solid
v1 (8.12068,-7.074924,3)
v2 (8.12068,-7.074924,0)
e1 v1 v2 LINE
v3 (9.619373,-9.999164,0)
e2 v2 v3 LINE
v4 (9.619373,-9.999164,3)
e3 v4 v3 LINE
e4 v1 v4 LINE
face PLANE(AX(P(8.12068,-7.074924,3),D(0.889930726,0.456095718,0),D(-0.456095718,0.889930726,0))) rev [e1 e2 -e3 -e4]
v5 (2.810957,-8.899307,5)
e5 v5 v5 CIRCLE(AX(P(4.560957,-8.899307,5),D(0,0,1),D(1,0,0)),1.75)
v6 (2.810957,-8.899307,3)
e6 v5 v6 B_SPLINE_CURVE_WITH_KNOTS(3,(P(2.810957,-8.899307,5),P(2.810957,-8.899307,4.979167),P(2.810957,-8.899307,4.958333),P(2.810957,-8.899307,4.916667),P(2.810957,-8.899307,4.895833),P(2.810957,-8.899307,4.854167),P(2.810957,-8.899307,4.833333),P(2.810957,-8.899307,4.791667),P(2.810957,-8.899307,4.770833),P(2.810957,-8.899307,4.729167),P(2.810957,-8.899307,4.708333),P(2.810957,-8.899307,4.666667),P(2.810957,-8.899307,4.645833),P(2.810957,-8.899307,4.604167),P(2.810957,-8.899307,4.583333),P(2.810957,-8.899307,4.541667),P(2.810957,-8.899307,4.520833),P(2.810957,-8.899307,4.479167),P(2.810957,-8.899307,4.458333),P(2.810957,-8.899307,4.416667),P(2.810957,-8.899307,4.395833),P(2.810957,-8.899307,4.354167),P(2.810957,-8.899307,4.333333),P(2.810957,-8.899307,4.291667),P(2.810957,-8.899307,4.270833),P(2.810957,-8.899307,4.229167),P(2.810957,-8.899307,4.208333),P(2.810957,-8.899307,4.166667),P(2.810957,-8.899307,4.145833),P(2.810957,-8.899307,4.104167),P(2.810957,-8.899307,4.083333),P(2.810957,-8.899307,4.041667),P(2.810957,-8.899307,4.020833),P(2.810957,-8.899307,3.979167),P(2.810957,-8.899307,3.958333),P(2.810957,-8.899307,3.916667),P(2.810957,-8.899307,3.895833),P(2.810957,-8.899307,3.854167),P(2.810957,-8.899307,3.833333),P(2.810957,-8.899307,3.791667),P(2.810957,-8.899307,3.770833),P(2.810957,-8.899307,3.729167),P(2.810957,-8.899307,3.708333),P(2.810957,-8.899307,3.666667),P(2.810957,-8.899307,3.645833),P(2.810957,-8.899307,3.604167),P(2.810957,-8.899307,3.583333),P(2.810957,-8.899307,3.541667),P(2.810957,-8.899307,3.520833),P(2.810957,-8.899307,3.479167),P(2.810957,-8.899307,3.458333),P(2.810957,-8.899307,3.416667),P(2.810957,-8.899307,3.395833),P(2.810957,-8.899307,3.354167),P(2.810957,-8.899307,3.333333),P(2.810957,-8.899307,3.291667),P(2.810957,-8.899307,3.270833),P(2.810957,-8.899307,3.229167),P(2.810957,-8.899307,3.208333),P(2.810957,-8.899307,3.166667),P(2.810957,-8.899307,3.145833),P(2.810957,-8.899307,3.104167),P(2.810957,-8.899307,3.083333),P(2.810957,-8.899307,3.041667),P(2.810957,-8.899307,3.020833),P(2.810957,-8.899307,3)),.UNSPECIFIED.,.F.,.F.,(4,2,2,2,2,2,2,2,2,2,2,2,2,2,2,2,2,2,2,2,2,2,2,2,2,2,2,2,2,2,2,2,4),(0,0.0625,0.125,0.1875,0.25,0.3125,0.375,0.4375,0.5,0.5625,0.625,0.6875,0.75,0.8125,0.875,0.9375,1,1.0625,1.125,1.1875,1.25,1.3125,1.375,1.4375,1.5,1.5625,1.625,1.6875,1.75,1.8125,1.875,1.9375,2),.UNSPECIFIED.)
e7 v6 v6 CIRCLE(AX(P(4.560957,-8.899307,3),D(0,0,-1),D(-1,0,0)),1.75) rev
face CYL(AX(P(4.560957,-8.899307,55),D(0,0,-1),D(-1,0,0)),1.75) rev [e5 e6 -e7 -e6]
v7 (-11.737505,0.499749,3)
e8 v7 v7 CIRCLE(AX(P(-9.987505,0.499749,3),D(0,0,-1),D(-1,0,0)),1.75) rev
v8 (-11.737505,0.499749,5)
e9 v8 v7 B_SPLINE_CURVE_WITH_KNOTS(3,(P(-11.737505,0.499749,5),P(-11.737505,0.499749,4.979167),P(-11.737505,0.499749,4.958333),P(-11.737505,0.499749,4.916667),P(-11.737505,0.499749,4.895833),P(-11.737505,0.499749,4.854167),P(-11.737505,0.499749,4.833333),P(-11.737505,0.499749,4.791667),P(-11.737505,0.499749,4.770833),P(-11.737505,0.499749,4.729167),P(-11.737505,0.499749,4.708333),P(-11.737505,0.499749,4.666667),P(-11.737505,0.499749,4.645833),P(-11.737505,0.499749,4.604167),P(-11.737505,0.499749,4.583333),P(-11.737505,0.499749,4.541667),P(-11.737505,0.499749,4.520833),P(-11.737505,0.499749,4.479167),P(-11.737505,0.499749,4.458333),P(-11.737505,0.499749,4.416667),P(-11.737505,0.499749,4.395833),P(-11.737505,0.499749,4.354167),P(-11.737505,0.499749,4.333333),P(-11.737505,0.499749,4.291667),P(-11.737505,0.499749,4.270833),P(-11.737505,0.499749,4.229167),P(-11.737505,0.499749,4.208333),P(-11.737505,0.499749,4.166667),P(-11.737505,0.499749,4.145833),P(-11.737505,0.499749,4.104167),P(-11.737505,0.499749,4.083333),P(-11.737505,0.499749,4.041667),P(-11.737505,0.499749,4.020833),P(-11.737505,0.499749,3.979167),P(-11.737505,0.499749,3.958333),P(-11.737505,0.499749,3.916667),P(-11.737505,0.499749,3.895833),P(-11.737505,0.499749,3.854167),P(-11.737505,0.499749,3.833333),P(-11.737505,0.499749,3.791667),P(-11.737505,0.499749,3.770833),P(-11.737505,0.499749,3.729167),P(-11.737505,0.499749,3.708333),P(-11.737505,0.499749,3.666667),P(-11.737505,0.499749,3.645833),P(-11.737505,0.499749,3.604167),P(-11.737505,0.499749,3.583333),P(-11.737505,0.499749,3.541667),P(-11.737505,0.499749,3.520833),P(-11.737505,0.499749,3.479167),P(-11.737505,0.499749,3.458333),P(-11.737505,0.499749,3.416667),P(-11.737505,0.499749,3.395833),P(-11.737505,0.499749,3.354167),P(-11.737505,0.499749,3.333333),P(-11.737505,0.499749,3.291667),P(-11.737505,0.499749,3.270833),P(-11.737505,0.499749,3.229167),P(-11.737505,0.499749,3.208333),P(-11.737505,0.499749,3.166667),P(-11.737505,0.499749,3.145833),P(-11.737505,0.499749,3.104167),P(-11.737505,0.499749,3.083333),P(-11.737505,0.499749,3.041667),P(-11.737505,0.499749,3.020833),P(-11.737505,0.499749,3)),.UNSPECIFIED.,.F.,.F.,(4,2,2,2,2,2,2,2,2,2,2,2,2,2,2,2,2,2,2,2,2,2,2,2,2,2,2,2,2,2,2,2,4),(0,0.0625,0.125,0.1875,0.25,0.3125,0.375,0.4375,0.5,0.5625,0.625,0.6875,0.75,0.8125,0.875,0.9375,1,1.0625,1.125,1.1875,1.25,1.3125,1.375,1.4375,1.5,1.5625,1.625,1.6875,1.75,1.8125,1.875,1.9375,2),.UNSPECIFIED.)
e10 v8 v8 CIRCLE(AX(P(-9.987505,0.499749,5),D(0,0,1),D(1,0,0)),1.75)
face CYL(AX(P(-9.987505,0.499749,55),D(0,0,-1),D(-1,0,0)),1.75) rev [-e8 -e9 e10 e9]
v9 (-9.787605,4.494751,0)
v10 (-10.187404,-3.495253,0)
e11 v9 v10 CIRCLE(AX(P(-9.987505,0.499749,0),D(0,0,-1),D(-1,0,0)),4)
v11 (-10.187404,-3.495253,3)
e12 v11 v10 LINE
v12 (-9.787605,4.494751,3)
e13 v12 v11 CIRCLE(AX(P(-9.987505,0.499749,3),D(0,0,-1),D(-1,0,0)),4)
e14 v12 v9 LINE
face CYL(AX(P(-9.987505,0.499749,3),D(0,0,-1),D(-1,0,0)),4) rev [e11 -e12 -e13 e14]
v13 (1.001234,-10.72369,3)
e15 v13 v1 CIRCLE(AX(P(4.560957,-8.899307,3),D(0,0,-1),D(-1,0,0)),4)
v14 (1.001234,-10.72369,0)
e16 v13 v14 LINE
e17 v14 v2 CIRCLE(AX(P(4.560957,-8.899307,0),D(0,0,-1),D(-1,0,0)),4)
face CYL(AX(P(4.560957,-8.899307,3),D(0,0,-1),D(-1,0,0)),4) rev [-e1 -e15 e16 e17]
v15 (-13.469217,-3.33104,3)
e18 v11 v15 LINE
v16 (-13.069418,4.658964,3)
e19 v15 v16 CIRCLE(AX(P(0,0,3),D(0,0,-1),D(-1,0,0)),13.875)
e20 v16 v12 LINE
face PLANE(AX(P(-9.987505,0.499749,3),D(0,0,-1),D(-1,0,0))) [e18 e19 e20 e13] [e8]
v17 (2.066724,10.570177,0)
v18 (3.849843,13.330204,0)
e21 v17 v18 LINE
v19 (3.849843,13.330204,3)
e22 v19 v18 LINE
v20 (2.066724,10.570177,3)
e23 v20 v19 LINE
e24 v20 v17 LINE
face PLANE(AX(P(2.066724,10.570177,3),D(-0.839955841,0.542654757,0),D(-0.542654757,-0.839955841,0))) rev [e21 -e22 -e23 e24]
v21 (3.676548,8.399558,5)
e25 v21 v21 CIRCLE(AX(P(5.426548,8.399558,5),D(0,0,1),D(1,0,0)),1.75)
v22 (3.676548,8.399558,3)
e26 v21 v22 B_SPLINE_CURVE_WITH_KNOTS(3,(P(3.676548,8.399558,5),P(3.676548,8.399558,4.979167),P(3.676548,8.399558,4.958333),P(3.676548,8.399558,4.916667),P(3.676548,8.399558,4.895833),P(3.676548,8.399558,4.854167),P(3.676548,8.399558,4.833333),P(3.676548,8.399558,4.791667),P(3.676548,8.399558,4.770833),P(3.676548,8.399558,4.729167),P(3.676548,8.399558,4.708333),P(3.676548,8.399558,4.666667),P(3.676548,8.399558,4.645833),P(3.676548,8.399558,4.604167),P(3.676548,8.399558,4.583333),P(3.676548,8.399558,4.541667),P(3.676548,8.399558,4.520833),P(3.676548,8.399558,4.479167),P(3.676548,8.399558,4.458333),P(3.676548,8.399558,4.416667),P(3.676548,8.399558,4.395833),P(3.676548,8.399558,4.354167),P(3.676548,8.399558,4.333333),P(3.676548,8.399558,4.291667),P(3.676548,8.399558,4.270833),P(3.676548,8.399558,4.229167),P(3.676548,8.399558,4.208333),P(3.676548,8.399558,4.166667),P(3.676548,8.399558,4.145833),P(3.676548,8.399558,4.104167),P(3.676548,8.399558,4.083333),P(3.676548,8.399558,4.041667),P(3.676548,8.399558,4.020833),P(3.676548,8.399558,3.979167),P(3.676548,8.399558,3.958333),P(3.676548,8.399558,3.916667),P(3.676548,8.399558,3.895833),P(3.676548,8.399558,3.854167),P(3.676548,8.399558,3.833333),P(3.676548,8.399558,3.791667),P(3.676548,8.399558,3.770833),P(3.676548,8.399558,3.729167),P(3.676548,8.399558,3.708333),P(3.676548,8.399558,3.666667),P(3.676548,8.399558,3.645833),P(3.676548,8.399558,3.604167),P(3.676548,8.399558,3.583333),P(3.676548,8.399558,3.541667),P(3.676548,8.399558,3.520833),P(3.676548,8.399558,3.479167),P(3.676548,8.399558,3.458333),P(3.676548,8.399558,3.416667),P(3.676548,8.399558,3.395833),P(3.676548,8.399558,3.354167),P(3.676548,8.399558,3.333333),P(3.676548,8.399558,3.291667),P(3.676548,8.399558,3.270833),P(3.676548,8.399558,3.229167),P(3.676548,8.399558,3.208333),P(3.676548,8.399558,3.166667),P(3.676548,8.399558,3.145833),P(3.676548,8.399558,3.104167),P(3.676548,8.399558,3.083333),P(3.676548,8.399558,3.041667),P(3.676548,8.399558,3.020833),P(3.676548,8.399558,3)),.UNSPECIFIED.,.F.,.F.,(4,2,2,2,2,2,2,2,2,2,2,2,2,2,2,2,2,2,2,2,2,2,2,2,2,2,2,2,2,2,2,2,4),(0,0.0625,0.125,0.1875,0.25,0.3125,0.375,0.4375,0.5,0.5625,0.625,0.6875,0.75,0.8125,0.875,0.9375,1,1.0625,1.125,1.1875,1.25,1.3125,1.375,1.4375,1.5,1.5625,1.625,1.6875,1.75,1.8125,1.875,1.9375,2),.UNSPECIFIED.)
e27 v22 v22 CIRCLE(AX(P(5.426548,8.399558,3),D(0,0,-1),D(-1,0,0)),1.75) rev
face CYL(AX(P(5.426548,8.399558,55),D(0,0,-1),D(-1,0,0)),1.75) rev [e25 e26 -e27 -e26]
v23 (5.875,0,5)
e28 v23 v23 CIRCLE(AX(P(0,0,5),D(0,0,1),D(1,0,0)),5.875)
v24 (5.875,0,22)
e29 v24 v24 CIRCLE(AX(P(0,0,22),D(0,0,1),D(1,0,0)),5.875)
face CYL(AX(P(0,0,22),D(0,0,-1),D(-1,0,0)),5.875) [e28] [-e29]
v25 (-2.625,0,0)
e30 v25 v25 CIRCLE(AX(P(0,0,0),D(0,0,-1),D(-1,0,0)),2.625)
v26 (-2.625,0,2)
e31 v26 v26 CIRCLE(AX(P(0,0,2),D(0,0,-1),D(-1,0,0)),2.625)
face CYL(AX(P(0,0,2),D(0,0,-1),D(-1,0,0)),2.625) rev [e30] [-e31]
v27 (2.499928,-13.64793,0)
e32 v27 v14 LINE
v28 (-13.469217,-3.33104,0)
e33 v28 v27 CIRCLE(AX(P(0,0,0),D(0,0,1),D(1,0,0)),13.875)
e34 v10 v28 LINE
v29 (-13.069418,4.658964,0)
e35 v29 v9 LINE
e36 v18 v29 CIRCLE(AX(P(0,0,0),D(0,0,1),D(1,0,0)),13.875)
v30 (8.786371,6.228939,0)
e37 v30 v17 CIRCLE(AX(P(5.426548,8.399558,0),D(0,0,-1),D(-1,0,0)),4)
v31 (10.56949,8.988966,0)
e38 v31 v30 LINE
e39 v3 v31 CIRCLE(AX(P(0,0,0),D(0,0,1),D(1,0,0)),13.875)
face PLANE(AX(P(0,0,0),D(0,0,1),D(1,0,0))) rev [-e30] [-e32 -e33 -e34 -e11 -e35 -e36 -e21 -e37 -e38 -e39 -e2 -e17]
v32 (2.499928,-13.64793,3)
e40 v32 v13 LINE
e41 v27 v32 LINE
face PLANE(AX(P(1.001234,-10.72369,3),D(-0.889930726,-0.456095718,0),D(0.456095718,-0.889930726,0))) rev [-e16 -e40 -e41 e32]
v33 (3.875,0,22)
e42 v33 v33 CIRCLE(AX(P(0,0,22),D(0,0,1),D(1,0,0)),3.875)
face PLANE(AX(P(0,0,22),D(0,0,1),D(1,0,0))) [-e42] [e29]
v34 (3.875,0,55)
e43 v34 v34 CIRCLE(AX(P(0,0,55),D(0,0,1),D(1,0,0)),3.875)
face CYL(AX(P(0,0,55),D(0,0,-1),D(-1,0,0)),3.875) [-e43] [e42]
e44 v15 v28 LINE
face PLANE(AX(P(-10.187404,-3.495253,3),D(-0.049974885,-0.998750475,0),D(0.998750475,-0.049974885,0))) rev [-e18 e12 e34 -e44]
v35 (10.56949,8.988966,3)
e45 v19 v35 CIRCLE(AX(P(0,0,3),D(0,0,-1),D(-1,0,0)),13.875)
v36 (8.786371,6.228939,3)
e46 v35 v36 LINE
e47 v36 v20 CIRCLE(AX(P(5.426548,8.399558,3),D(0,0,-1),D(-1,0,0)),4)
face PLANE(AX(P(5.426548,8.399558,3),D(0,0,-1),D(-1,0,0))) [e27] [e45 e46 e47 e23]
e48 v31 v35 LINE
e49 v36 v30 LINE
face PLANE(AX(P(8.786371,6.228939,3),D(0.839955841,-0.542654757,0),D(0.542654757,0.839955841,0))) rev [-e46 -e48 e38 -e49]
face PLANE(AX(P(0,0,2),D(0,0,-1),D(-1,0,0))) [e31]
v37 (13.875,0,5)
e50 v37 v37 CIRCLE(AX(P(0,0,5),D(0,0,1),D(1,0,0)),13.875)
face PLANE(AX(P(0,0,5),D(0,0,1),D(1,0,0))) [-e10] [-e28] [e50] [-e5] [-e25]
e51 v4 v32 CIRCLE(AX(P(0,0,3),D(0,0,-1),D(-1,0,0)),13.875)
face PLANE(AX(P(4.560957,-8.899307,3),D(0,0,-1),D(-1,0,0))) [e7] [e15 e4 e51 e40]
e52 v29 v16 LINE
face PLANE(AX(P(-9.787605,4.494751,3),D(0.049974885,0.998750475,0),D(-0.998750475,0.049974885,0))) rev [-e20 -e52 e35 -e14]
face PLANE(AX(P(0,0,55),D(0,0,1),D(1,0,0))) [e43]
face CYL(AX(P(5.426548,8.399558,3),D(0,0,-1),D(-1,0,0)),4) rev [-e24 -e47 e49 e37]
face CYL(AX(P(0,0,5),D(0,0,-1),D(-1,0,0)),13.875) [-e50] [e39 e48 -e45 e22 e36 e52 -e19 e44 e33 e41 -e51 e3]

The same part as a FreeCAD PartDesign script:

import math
import FreeCAD as App
import Part
import Sketcher

V = App.Vector
Q = App.Units.Quantity

doc = App.newDocument("Part")
body = doc.addObject("PartDesign::Body", "Body")

# Sketch on XY plane
sketch1 = body.newObject("Sketcher::SketchObject", "Sketch")
sketch1.AttachmentSupport = (doc.getObject("XY_Plane"), [""])
sketch1.MapMode = "FlatFace"
sketch1.addGeometry(Part.Circle(V(0, 0, 0), V(0, 0, 1), 14), False)
sketch1.addConstraint([
    Sketcher.Constraint("Coincident", 0, 3, -1, 1),
    Sketcher.Constraint("Diameter", 0, Q("27.75 mm")),
])
pad1 = body.newObject("PartDesign::Pad", "Pad")
pad1.Profile = sketch1
pad1.Length = 5

# Sketch on XY plane
sketch2 = body.newObject("Sketcher::SketchObject", "Sketch001")
sketch2.AttachmentSupport = (doc.getObject("XY_Plane"), [""])
sketch2.MapMode = "FlatFace"
sketch2.addGeometry(Part.Circle(V(0, 0, 0), V(0, 0, 1), 2.6), False)
sketch2.addConstraint([
    Sketcher.Constraint("Coincident", 0, 3, -1, 1),
    Sketcher.Constraint("Diameter", 0, Q("5.25 mm")),
])
pocket1 = body.newObject("PartDesign::Pocket", "Pocket")
pocket1.Profile = sketch2
pocket1.Length = 2
pocket1.Reversed = True

# Sketch on XY plane
sketch3 = body.newObject("Sketcher::SketchObject", "Sketch002")
sketch3.AttachmentSupport = (doc.getObject("XY_Plane"), [""])
sketch3.MapMode = "FlatFace"
sketch3.AttachmentOffset = App.Placement(V(0, 0, 5), App.Rotation())
sketch3.addGeometry(Part.Circle(V(0, 0, 0), V(0, 0, 1), 3.9), False)
sketch3.addConstraint([
    Sketcher.Constraint("Coincident", 0, 3, -1, 1),
    Sketcher.Constraint("Diameter", 0, Q("7.75 mm")),
])
pad2 = body.newObject("PartDesign::Pad", "Pad001")
pad2.Profile = sketch3
pad2.Length = 50

# Sketch on XY plane
sketch4 = body.newObject("Sketcher::SketchObject", "Sketch003")
sketch4.AttachmentSupport = (doc.getObject("XY_Plane"), [""])
sketch4.MapMode = "FlatFace"
sketch4.AttachmentOffset = App.Placement(V(0, 0, 5), App.Rotation())
sketch4.addGeometry(Part.Circle(V(0, 0, 0), V(0, 0, 1), 6), False)
sketch4.addConstraint([
    Sketcher.Constraint("Coincident", 0, 3, -1, 1),
    Sketcher.Constraint("Diameter", 0, Q("11.75 mm")),
])
pad3 = body.newObject("PartDesign::Pad", "Pad002")
pad3.Profile = sketch4
pad3.Length = 17

# Sketch on XY plane
sketch5 = body.newObject("Sketcher::SketchObject", "Sketch004")
sketch5.AttachmentSupport = (doc.getObject("XY_Plane"), [""])
sketch5.MapMode = "FlatFace"
sketch5.addGeometry([
    Part.Circle(V(-10, 0.5, 0), V(0, 0, 1), 1.8),
    Part.Circle(V(4.6, -8.9, 0), V(0, 0, 1), 1.8),
    Part.Circle(V(5.4, 8.4, 0), V(0, 0, 1), 1.8),
], False)
sketch5.addConstraint([
    Sketcher.Constraint("Equal", 0, 1),
    Sketcher.Constraint("Equal", 1, 2),
    Sketcher.Constraint("Diameter", 0, Q("3.5 mm")),
    Sketcher.Constraint("DistanceY", -1, 1, 0, 3, Q("0.499749 mm")),
    Sketcher.Constraint("DistanceY", -1, 1, 2, 3, Q("8.399558 mm")),
    Sketcher.Constraint("DistanceX", 0, 3, 1, 3, Q("14.548462 mm")),
    Sketcher.Constraint("DistanceX", 1, 3, 2, 3, Q("0.86559 mm")),
    Sketcher.Constraint("DistanceX", 0, 3, -1, 1, Q("9.987505 mm")),
    Sketcher.Constraint("DistanceY", 1, 3, -1, 1, Q("8.899307 mm")),
])
pocket2 = body.newObject("PartDesign::Pocket", "Pocket001")
pocket2.Profile = sketch5
pocket2.Type = "ThroughAll"
pocket2.Midplane = True

# Sketch on XY plane
sketch6 = body.newObject("Sketcher::SketchObject", "Sketch005")
sketch6.AttachmentSupport = (doc.getObject("XY_Plane"), [""])
sketch6.MapMode = "FlatFace"
sketch6.addGeometry([
    Part.LineSegment(V(-14.8, 4.7, 0), V(-9.8, 4.5, 0)),  # 0
    Part.ArcOfCircle(Part.Circle(V(-10, 0.5, 0), V(0, 0, 1), 4), math.radians(-93), math.radians(87)),  # 1
    Part.LineSegment(V(-10.2, -3.5, 0), V(-15.2, -3.2, 0)),  # 2
    Part.ArcOfCircle(Part.Circle(V(-15, 0.8, 0), V(0, 0, 1), 4), math.radians(87), math.radians(267)),  # 3
    Part.LineSegment(V(4.3, -17.1, 0), V(1, -10.7, 0)),  # 4
    Part.ArcOfCircle(Part.Circle(V(4.6, -8.9, 0), V(0, 0, 1), 4), math.radians(27), math.radians(207)),  # 5
    Part.LineSegment(V(8.1, -7.1, 0), V(11.4, -13.4, 0)),  # 6
    Part.ArcOfCircle(Part.Circle(V(7.8, -15.3, 0), V(0, 0, 1), 4), math.radians(-153), math.radians(27)),  # 7
    Part.LineSegment(V(13.2, 13.1, 0), V(8.8, 6.2, 0)),  # 8
    Part.ArcOfCircle(Part.Circle(V(5.4, 8.4, 0), V(0, 0, 1), 4), math.radians(147), math.radians(327)),  # 9
    Part.LineSegment(V(2.1, 10.6, 0), V(6.5, 17.4, 0)),  # 10
    Part.ArcOfCircle(Part.Circle(V(9.8, 15.2, 0), V(0, 0, 1), 4), math.radians(-33), math.radians(147)),  # 11
], False)
sketch6.addConstraint([
    Sketcher.Constraint("Tangent", 0, 2, 1, 2),
    Sketcher.Constraint("Tangent", 1, 1, 2, 1),
    Sketcher.Constraint("Tangent", 2, 2, 3, 2),
    Sketcher.Constraint("Tangent", 3, 1, 0, 1),
    Sketcher.Constraint("Tangent", 4, 2, 5, 2),
    Sketcher.Constraint("Tangent", 5, 1, 6, 1),
    Sketcher.Constraint("Tangent", 6, 2, 7, 2),
    Sketcher.Constraint("Tangent", 7, 1, 4, 1),
    Sketcher.Constraint("Tangent", 8, 2, 9, 2),
    Sketcher.Constraint("Tangent", 9, 1, 10, 1),
    Sketcher.Constraint("Tangent", 10, 2, 11, 2),
    Sketcher.Constraint("Tangent", 11, 1, 8, 1),
    Sketcher.Constraint("Equal", 1, 3),
    Sketcher.Constraint("Equal", 3, 5),
    Sketcher.Constraint("Equal", 5, 7),
    Sketcher.Constraint("Equal", 7, 9),
    Sketcher.Constraint("Equal", 9, 11),
    Sketcher.Constraint("Radius", 1, Q("4 mm")),
    Sketcher.Constraint("DistanceY", 1, 3, 0, 2, Q("3.995002 mm")),
    Sketcher.Constraint("DistanceY", 9, 1, 11, 1, Q("2.503001 mm")),
    Sketcher.Constraint("DistanceX", -1, 1, 11, 1, Q("13.208102 mm")),
    Sketcher.Constraint("DistanceY", 7, 3, 5, 1, Q("8.188601 mm")),
    Sketcher.Constraint("DistanceY", 6, 2, 9, 3, Q("21.838701 mm")),
    Sketcher.Constraint("Distance", 0, Q("5.065718 mm")),
    Sketcher.Constraint("Distance", 8, Q("8.148332 mm")),
    Sketcher.Constraint("DistanceY", -1, 1, 1, 3, Q("0.499749 mm")),
    Sketcher.Constraint("DistanceY", -1, 1, 9, 3, Q("8.399558 mm")),
    Sketcher.Constraint("DistanceY", 4, 2, -1, 1, Q("10.72369 mm")),
    Sketcher.Constraint("DistanceX", -1, 1, 5, 1, Q("8.12068 mm")),
    Sketcher.Constraint("DistanceX", 1, 3, 5, 3, Q("14.548462 mm")),
])
pocket3 = body.newObject("PartDesign::Pocket", "Pocket002")
pocket3.Profile = sketch6
pocket3.Length = 3
pocket3.Reversed = True

doc.recompute()
